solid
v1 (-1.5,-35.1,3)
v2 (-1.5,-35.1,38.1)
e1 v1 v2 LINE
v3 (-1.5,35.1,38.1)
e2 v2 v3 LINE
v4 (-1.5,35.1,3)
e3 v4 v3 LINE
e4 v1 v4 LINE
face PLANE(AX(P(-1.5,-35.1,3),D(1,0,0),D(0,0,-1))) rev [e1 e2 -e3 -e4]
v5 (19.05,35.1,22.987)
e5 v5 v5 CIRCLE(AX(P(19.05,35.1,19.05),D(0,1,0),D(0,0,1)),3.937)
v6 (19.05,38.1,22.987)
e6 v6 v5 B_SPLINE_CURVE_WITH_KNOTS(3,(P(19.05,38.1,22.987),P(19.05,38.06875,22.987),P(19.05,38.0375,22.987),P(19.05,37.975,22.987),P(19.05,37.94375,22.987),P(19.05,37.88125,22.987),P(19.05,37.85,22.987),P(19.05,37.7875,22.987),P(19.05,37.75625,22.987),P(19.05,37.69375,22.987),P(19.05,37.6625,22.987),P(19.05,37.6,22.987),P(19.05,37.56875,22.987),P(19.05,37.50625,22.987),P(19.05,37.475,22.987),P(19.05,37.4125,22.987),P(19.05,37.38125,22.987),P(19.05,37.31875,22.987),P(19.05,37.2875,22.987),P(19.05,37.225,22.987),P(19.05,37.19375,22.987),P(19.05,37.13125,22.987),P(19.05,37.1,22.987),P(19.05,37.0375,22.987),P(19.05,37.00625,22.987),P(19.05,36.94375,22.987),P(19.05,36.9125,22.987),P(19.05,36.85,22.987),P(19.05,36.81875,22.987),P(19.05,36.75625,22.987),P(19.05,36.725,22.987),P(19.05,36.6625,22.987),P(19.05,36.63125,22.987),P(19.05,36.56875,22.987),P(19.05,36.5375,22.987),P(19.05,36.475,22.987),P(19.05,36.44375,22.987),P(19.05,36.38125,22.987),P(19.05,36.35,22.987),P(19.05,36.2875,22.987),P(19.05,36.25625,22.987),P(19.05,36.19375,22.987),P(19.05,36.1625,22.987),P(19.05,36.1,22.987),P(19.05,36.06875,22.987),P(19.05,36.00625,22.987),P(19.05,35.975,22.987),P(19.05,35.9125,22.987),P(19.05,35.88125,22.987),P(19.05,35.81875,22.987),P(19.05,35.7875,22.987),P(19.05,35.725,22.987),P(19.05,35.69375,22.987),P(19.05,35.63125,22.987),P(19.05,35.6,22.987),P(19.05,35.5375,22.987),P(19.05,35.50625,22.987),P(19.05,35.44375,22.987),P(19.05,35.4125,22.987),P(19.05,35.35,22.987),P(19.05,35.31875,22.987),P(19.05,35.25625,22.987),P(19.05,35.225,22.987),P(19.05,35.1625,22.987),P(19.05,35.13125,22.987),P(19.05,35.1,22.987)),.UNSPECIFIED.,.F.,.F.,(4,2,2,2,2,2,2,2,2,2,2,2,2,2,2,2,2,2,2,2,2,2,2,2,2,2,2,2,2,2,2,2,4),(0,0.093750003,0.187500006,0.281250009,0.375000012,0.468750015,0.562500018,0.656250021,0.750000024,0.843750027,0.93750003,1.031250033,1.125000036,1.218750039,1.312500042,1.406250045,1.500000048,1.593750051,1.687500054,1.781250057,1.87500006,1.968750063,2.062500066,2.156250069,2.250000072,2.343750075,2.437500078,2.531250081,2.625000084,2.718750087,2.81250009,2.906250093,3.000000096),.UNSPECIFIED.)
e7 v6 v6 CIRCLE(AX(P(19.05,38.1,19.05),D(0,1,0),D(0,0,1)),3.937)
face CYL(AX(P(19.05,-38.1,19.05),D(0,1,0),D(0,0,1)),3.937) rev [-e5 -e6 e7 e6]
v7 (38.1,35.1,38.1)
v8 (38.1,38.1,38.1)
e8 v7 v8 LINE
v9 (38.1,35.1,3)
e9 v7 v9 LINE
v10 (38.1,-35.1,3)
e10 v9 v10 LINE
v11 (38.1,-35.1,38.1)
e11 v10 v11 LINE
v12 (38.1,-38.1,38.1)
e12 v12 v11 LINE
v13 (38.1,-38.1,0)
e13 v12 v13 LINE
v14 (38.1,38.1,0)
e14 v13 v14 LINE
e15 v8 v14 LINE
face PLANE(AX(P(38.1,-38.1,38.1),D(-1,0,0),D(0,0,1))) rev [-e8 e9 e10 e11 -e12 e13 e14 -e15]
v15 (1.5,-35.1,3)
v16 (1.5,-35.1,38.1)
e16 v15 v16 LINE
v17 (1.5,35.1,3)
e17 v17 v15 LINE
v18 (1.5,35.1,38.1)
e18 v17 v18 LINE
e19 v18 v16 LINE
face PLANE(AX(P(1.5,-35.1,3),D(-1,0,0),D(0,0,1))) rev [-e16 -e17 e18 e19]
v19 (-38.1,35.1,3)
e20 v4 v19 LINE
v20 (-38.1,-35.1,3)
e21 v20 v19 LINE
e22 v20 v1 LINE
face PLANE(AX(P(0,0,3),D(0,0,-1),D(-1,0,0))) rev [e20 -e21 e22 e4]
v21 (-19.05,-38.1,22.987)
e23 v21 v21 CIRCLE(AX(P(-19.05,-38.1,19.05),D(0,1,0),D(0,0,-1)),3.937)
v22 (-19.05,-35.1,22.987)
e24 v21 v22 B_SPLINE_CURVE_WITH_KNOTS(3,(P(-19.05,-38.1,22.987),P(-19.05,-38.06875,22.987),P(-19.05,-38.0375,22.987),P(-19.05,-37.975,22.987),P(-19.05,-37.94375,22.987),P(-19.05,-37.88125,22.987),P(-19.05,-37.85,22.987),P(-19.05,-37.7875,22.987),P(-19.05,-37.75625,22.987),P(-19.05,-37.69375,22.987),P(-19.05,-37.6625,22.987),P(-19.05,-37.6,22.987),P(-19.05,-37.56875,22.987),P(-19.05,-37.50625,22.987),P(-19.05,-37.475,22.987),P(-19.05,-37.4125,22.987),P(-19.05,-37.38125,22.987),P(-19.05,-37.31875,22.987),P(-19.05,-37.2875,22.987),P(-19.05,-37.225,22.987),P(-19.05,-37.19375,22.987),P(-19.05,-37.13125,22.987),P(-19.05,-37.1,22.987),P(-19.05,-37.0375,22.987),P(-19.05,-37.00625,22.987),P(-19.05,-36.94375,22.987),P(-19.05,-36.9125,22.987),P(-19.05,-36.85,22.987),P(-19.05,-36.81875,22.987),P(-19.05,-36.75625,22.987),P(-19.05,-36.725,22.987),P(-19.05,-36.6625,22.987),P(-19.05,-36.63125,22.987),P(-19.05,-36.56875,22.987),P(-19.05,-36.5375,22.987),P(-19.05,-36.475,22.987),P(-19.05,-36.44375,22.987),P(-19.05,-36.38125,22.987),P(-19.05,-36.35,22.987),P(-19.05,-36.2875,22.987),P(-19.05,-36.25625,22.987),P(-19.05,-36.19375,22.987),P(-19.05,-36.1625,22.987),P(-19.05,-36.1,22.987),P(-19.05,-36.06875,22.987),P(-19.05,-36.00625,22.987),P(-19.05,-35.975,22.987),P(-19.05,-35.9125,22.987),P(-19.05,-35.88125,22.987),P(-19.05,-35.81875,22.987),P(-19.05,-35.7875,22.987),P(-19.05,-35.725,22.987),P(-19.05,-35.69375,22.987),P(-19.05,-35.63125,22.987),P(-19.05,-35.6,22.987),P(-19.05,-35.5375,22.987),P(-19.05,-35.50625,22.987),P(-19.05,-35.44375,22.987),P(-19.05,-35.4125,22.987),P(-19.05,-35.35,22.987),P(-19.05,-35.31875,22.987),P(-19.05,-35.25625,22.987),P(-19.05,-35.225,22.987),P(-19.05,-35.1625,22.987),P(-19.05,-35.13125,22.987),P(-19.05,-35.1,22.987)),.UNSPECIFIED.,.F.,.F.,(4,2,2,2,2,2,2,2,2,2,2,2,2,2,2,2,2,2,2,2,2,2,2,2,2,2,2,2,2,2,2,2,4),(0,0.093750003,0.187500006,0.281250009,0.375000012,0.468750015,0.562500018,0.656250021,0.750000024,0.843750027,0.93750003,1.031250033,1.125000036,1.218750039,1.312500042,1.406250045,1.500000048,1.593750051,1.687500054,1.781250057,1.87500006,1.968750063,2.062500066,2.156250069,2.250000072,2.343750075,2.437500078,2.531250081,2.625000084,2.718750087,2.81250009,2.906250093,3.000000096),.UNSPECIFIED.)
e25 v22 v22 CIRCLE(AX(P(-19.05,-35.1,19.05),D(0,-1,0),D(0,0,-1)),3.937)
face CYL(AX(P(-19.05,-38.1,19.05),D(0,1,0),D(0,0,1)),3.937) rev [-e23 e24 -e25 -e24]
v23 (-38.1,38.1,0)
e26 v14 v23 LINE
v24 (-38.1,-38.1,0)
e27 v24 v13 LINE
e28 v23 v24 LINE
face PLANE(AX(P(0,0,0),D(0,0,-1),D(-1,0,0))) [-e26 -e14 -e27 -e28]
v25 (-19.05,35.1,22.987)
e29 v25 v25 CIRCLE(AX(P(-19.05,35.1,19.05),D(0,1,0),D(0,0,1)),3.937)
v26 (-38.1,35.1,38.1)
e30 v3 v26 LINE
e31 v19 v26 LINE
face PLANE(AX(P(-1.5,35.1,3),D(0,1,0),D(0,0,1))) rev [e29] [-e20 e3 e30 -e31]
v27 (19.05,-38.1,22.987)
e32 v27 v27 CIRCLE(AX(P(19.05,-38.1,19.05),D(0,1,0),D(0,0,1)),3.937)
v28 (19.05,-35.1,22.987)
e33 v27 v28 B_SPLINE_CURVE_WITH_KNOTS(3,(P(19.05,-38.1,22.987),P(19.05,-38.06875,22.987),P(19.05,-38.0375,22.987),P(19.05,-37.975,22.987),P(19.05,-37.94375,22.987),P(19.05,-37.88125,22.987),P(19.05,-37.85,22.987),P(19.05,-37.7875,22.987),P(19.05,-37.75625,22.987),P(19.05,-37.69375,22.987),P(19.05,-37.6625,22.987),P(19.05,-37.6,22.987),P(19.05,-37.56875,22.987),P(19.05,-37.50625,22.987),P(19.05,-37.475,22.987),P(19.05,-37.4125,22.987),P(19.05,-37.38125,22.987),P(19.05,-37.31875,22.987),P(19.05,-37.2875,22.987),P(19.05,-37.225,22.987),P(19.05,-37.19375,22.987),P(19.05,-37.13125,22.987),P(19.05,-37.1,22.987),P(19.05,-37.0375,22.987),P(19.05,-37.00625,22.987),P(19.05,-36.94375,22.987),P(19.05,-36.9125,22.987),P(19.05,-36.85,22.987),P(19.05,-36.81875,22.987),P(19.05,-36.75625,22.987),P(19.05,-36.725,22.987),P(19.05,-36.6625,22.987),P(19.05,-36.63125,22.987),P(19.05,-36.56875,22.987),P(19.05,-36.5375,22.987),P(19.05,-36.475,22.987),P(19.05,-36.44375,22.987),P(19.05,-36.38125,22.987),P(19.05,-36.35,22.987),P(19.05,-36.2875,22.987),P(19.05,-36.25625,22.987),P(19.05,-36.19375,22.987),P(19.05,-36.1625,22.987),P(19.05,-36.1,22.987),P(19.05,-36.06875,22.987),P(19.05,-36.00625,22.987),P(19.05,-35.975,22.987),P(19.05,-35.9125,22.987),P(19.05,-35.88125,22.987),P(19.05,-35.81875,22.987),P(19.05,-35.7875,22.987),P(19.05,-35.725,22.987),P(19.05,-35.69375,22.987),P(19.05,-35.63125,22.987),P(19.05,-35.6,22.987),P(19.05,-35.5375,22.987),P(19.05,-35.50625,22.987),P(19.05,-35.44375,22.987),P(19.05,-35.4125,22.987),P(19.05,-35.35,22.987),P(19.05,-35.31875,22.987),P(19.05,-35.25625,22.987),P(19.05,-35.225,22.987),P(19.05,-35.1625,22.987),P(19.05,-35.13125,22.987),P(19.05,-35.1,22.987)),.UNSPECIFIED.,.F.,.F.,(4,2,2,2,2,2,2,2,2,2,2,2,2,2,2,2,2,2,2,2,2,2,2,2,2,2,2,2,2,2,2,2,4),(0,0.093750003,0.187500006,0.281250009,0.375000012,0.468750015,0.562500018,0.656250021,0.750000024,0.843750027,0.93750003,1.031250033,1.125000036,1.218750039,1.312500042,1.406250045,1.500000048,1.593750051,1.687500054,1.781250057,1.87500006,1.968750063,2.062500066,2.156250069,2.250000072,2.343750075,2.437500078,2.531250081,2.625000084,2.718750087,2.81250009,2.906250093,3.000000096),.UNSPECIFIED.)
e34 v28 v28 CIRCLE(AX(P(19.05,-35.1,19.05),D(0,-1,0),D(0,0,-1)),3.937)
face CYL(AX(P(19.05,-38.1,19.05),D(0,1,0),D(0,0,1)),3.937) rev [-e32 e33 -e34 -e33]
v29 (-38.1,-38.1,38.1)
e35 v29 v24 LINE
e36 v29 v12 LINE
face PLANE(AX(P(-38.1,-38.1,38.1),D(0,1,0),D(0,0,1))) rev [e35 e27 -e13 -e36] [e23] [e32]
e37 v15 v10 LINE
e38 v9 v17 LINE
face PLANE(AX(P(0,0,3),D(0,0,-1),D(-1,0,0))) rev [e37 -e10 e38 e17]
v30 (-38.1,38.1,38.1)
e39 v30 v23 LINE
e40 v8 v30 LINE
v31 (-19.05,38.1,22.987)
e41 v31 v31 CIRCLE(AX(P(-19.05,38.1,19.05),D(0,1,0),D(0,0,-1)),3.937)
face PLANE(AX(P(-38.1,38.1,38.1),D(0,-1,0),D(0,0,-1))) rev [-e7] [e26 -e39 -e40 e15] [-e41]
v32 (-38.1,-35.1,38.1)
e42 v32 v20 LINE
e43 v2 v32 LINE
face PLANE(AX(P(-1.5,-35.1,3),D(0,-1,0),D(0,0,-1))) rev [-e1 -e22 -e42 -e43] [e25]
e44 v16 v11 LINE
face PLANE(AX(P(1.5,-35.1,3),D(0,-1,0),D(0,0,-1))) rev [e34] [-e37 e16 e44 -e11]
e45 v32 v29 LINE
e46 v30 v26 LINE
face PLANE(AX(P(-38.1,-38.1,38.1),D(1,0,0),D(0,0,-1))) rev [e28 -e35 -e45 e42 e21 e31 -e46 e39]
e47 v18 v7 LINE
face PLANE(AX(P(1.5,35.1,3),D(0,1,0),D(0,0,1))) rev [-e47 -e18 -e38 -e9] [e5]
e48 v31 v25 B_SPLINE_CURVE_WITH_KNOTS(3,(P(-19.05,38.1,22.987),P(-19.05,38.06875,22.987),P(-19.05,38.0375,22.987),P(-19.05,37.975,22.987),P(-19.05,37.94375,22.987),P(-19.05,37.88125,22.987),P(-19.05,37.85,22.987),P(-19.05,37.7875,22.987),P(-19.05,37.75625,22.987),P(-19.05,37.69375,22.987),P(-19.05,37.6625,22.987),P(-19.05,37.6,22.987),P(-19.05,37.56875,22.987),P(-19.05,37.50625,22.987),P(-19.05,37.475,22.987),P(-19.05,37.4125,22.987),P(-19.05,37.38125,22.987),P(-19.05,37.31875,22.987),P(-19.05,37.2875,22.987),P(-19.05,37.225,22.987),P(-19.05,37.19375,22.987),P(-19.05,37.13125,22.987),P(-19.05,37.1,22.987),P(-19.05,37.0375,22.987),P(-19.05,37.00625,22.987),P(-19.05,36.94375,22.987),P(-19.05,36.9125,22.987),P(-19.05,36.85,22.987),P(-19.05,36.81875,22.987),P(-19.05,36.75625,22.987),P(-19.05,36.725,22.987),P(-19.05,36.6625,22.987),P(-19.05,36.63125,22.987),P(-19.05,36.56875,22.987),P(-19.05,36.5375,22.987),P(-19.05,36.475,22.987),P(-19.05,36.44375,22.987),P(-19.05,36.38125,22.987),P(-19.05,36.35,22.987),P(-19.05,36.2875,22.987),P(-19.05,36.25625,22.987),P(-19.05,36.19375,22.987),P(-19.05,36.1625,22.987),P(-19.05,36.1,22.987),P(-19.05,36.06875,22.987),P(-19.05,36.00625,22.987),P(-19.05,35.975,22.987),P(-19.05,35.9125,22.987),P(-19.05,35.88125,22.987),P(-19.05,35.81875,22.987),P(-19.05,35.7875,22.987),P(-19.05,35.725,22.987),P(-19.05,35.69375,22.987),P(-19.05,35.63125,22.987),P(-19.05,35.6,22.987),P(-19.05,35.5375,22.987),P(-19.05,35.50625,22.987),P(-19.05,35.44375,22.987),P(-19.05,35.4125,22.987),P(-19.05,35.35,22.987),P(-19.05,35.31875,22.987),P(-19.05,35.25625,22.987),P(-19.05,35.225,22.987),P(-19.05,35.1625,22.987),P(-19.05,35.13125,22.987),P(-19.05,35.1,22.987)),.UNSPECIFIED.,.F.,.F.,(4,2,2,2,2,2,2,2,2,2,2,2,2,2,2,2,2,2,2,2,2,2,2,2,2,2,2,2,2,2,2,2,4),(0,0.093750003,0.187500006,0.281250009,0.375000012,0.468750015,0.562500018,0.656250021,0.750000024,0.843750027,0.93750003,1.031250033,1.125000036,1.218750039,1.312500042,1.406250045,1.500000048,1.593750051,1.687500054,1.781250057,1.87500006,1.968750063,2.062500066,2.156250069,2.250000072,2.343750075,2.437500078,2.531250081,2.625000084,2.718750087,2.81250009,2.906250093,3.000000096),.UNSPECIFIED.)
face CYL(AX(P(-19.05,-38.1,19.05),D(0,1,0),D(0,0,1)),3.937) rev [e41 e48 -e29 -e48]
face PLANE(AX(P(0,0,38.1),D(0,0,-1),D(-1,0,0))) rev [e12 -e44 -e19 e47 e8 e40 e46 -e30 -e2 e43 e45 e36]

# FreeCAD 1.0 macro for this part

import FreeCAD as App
import Part
import Sketcher

V = App.Vector
Q = App.Units.Quantity


def add_polygon(sketch, points):
    """Adds a closed chain of lines whose ends are joined by coincident constraints."""
    first, n = sketch.GeometryCount, len(points)
    for a, b in zip(points, points[1:] + points[:1]):
        sketch.addGeometry(Part.LineSegment(App.Vector(*a, 0), App.Vector(*b, 0)), False)
    for i in range(n):
        sketch.addConstraint(Sketcher.Constraint("Coincident", first + i, 2, first + (i + 1) % n, 1))

doc = App.newDocument("Part")
body = doc.addObject("PartDesign::Body", "Body")

# Sketch on XY plane
sketch1 = body.newObject("Sketcher::SketchObject", "Sketch")
sketch1.AttachmentSupport = (doc.getObject("XY_Plane"), [""])
sketch1.MapMode = "FlatFace"
add_polygon(sketch1, [(-38, 38), (-38, -38), (38, -38), (38, 38)])  # lines 0-3
sketch1.addConstraint(Sketcher.Constraint("Vertical", 0))
sketch1.addConstraint(Sketcher.Constraint("Horizontal", 1))
sketch1.addConstraint(Sketcher.Constraint("Vertical", 2))
sketch1.addConstraint(Sketcher.Constraint("Horizontal", 3))
sketch1.addConstraint(Sketcher.Constraint("Symmetric", 0, 2, 2, 2, -1, 1))
sketch1.addConstraint(Sketcher.Constraint("Equal", 3, 0))
sketch1.addConstraint(Sketcher.Constraint("DistanceX", 1, 1, 1, 2, Q("3 in")))
pad1 = body.newObject("PartDesign::Pad", "Pad")
pad1.Profile = sketch1
pad1.Length = Q("1.5 in")

# Sketch on XY plane
sketch2 = body.newObject("Sketcher::SketchObject", "Sketch001")
sketch2.AttachmentSupport = (doc.getObject("XY_Plane"), [""])
sketch2.MapMode = "FlatFace"
sketch2.AttachmentOffset = App.Placement(V(0, 0, 1.5 * 25.4), App.Rotation())
add_polygon(sketch2, [(2, 35), (2, -35), (41, -35), (41, 35)])  # lines 0-3
add_polygon(sketch2, [(-41, 35), (-41, -35), (-1, -35), (-1, 35)])  # lines 4-7
sketch2.addConstraint(Sketcher.Constraint("Vertical", 0))
sketch2.addConstraint(Sketcher.Constraint("Horizontal", 1))
sketch2.addConstraint(Sketcher.Constraint("Vertical", 2))
sketch2.addConstraint(Sketcher.Constraint("Horizontal", 3))
sketch2.addConstraint(Sketcher.Constraint("Vertical", 4))
sketch2.addConstraint(Sketcher.Constraint("Horizontal", 5))
sketch2.addConstraint(Sketcher.Constraint("Vertical", 6))
sketch2.addConstraint(Sketcher.Constraint("Horizontal", 7))
sketch2.addConstraint(Sketcher.Constraint("Symmetric", 3, 2, 5, 2, -1, 1))
sketch2.addConstraint(Sketcher.Constraint("Horizontal", 1, 2, 4, 2))
sketch2.addConstraint(Sketcher.Constraint("Horizontal", 3, 2, 6, 2))
sketch2.addConstraint(Sketcher.Constraint("DistanceY", 0, 2, 0, 1, Q("70.2 mm")))
sketch2.addConstraint(Sketcher.Constraint("DistanceX", 4, 2, -1, 1, Q("1.6081999 in")))
sketch2.addConstraint(Sketcher.Constraint("DistanceX", 1, 1, 1, 2, Q("39.46344 mm")))
sketch2.addConstraint(Sketcher.Constraint("DistanceX", 5, 1, 5, 2, Q("39.348278 mm")))
pocket1 = body.newObject("PartDesign::Pocket", "Pocket")
pocket1.Profile = sketch2
pocket1.Length = 35.1

# Sketch on XZ plane
sketch3 = body.newObject("Sketcher::SketchObject", "Sketch002")
sketch3.AttachmentSupport = (doc.getObject("XZ_Plane"), [""])
sketch3.MapMode = "FlatFace"
sketch3.addGeometry(Part.Circle(V(19.1, 19.1, 0), V(0, 0, 1), 3.9), False)
sketch3.addGeometry(Part.Circle(V(-19.1, 19.1, 0), V(0, 0, 1), 3.9), False)
sketch3.addConstraint(Sketcher.Constraint("Equal", 0, 1))
sketch3.addConstraint(Sketcher.Constraint("Symmetric", 0, 3, 1, 3, -2))
sketch3.addConstraint(Sketcher.Constraint("Diameter", 0, Q("0.31 in")))
sketch3.addConstraint(Sketcher.Constraint("DistanceX", 1, 3, 0, 3, Q("1.5 in")))
sketch3.addConstraint(Sketcher.Constraint("DistanceY", -1, 1, 0, 3, Q("0.75 in")))
pocket2 = body.newObject("PartDesign::Pocket", "Pocket001")
pocket2.Profile = sketch3
pocket2.Length = Q("3 in")
pocket2.Midplane = True

doc.recompute()
